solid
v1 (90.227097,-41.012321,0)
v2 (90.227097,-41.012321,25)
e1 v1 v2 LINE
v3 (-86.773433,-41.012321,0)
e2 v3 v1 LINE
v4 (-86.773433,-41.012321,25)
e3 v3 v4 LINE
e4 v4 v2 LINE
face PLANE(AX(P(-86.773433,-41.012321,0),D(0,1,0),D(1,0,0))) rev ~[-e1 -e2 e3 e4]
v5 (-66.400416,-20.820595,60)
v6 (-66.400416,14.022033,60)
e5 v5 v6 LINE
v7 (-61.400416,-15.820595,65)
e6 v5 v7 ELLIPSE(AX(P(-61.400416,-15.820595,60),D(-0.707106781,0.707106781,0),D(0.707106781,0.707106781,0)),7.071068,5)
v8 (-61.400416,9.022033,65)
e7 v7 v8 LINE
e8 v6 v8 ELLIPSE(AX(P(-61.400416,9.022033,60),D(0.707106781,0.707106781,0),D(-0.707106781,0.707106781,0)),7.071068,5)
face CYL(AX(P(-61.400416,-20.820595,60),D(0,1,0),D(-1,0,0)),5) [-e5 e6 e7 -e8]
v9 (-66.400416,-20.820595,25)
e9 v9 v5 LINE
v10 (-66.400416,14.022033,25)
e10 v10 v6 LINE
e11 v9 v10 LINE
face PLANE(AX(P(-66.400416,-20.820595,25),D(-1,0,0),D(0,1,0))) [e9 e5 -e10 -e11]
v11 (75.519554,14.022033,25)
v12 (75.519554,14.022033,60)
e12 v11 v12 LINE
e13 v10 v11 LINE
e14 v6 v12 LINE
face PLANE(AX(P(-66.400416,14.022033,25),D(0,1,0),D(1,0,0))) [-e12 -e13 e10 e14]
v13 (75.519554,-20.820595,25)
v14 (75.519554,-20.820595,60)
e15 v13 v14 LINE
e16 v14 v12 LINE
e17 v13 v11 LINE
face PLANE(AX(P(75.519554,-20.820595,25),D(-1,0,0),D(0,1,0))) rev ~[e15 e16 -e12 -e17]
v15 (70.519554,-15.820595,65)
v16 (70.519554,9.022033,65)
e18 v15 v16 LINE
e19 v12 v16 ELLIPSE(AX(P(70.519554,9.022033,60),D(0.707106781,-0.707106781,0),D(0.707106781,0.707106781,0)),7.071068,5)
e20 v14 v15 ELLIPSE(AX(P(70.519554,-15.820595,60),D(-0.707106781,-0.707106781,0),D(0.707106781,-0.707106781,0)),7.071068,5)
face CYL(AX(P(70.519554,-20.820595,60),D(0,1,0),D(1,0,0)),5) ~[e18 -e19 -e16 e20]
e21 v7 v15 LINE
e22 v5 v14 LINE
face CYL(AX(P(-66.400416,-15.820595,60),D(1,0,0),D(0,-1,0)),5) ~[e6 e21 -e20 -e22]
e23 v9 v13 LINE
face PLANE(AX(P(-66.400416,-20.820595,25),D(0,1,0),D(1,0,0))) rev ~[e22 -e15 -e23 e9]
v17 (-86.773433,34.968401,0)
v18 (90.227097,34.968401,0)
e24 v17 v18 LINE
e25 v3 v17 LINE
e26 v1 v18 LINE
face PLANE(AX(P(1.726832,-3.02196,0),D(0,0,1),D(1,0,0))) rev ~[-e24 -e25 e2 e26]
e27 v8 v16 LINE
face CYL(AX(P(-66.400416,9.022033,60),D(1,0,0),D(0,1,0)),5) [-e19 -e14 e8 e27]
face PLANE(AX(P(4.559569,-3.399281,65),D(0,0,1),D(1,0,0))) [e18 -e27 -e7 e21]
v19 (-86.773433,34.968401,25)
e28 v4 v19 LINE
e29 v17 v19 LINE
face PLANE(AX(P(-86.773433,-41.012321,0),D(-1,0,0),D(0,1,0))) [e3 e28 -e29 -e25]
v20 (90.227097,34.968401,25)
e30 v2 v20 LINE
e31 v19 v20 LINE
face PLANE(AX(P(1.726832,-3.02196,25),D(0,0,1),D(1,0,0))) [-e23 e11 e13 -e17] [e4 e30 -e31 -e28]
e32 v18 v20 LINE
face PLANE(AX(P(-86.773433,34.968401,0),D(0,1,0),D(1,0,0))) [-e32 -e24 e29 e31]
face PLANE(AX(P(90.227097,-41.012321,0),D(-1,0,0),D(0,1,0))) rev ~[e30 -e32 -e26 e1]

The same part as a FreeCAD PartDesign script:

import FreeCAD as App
import Part
import Sketcher
from FreeCAD import Vector


def edges_at(feature, points):
    """Names of the edges that pass closest to the given points."""
    edges = feature.Shape.Edges
    near = lambda p: min(range(len(edges)), key=lambda i: edges[i].distToShape(Part.Vertex(*p))[0])
    return sorted({f"Edge{near(p) + 1}" for p in points})


def add_polygon(sketch, points):
    """Adds a closed chain of lines whose ends are joined by coincident constraints."""
    first, n = sketch.GeometryCount, len(points)
    for a, b in zip(points, points[1:] + points[:1]):
        sketch.addGeometry(Part.LineSegment(App.Vector(*a, 0), App.Vector(*b, 0)), False)
    for i in range(n):
        sketch.addConstraint(Sketcher.Constraint("Coincident", first + i, 2, first + (i + 1) % n, 1))

doc = App.newDocument("Part")
params = doc.addObject("Spreadsheet::Sheet", "Params")
for row, (alias, value) in enumerate([
    ("pad1_length", "25 mm"),
    ("pad2_length", "40 mm"),
    ("fillet_radius", "5 mm"),
], start=1):
    params.set(f"A{row}", alias)
    params.set(f"B{row}", "=" + value)
    params.setAlias(f"B{row}", alias)

body = doc.addObject("PartDesign::Body", "Body")

sketch1 = body.newObject("Sketcher::SketchObject", "Sketch")
sketch1.AttachmentSupport = (doc.getObject("XY_Plane"), [""])
sketch1.MapMode = "FlatFace"
add_polygon(sketch1, [(-87, 35), (-87, -41), (90, -41), (90, 35)])
sketch1.addConstraint(Sketcher.Constraint("Vertical", 0))
sketch1.addConstraint(Sketcher.Constraint("Horizontal", 1))
sketch1.addConstraint(Sketcher.Constraint("Vertical", 2))
sketch1.addConstraint(Sketcher.Constraint("Horizontal", 3))
sketch1.addConstraint(Sketcher.Constraint("DistanceX", 1, 1, 1, 2, 177.00053))
sketch1.addConstraint(Sketcher.Constraint("DistanceY", -1, 1, 2, 2, 34.968401))
sketch1.addConstraint(Sketcher.Constraint("DistanceY", 0, 2, 0, 1, 75.980723))
sketch1.addConstraint(Sketcher.Constraint("DistanceX", 0, 2, -1, 1, 86.773433))
pad1 = body.newObject("PartDesign::Pad", "Pad")
pad1.Profile = sketch1
pad1.setExpression("Length", "Params.pad1_length")

sketch2 = body.newObject("Sketcher::SketchObject", "Sketch001")
sketch2.AttachmentSupport = (doc.getObject("XY_Plane"), [""])
sketch2.MapMode = "FlatFace"
sketch2.AttachmentOffset = App.Placement(Vector(0, 0, 25), App.Rotation())
add_polygon(sketch2, [(-66, 14), (-66, -21), (76, -21), (76, 14)])
sketch2.addConstraint(Sketcher.Constraint("Vertical", 0))
sketch2.addConstraint(Sketcher.Constraint("Horizontal", 1))
sketch2.addConstraint(Sketcher.Constraint("Vertical", 2))
sketch2.addConstraint(Sketcher.Constraint("Horizontal", 3))
sketch2.addConstraint(Sketcher.Constraint("DistanceX", 1, 1, 1, 2, 141.91997))
sketch2.addConstraint(Sketcher.Constraint("DistanceY", 0, 2, 0, 1, 34.842628))
sketch2.addConstraint(Sketcher.Constraint("DistanceX", 0, 2, -1, 1, 66.400416))
sketch2.addConstraint(Sketcher.Constraint("DistanceY", 0, 2, -1, 1, 20.820595))
pad2 = body.newObject("PartDesign::Pad", "Pad001")
pad2.Profile = sketch2
pad2.setExpression("Length", "Params.pad2_length")
doc.recompute()

fillet = body.newObject("PartDesign::Fillet", "Fillet")
fillet.Base = (pad2, edges_at(pad2, [
    (4.56, -20.821, 65),
    (-66.4, -3.399, 65),
    (4.56, 14.022, 65),
    (75.52, -3.399, 65),
]))
fillet.setExpression("Radius", "Params.fillet_radius")

doc.recompute()
